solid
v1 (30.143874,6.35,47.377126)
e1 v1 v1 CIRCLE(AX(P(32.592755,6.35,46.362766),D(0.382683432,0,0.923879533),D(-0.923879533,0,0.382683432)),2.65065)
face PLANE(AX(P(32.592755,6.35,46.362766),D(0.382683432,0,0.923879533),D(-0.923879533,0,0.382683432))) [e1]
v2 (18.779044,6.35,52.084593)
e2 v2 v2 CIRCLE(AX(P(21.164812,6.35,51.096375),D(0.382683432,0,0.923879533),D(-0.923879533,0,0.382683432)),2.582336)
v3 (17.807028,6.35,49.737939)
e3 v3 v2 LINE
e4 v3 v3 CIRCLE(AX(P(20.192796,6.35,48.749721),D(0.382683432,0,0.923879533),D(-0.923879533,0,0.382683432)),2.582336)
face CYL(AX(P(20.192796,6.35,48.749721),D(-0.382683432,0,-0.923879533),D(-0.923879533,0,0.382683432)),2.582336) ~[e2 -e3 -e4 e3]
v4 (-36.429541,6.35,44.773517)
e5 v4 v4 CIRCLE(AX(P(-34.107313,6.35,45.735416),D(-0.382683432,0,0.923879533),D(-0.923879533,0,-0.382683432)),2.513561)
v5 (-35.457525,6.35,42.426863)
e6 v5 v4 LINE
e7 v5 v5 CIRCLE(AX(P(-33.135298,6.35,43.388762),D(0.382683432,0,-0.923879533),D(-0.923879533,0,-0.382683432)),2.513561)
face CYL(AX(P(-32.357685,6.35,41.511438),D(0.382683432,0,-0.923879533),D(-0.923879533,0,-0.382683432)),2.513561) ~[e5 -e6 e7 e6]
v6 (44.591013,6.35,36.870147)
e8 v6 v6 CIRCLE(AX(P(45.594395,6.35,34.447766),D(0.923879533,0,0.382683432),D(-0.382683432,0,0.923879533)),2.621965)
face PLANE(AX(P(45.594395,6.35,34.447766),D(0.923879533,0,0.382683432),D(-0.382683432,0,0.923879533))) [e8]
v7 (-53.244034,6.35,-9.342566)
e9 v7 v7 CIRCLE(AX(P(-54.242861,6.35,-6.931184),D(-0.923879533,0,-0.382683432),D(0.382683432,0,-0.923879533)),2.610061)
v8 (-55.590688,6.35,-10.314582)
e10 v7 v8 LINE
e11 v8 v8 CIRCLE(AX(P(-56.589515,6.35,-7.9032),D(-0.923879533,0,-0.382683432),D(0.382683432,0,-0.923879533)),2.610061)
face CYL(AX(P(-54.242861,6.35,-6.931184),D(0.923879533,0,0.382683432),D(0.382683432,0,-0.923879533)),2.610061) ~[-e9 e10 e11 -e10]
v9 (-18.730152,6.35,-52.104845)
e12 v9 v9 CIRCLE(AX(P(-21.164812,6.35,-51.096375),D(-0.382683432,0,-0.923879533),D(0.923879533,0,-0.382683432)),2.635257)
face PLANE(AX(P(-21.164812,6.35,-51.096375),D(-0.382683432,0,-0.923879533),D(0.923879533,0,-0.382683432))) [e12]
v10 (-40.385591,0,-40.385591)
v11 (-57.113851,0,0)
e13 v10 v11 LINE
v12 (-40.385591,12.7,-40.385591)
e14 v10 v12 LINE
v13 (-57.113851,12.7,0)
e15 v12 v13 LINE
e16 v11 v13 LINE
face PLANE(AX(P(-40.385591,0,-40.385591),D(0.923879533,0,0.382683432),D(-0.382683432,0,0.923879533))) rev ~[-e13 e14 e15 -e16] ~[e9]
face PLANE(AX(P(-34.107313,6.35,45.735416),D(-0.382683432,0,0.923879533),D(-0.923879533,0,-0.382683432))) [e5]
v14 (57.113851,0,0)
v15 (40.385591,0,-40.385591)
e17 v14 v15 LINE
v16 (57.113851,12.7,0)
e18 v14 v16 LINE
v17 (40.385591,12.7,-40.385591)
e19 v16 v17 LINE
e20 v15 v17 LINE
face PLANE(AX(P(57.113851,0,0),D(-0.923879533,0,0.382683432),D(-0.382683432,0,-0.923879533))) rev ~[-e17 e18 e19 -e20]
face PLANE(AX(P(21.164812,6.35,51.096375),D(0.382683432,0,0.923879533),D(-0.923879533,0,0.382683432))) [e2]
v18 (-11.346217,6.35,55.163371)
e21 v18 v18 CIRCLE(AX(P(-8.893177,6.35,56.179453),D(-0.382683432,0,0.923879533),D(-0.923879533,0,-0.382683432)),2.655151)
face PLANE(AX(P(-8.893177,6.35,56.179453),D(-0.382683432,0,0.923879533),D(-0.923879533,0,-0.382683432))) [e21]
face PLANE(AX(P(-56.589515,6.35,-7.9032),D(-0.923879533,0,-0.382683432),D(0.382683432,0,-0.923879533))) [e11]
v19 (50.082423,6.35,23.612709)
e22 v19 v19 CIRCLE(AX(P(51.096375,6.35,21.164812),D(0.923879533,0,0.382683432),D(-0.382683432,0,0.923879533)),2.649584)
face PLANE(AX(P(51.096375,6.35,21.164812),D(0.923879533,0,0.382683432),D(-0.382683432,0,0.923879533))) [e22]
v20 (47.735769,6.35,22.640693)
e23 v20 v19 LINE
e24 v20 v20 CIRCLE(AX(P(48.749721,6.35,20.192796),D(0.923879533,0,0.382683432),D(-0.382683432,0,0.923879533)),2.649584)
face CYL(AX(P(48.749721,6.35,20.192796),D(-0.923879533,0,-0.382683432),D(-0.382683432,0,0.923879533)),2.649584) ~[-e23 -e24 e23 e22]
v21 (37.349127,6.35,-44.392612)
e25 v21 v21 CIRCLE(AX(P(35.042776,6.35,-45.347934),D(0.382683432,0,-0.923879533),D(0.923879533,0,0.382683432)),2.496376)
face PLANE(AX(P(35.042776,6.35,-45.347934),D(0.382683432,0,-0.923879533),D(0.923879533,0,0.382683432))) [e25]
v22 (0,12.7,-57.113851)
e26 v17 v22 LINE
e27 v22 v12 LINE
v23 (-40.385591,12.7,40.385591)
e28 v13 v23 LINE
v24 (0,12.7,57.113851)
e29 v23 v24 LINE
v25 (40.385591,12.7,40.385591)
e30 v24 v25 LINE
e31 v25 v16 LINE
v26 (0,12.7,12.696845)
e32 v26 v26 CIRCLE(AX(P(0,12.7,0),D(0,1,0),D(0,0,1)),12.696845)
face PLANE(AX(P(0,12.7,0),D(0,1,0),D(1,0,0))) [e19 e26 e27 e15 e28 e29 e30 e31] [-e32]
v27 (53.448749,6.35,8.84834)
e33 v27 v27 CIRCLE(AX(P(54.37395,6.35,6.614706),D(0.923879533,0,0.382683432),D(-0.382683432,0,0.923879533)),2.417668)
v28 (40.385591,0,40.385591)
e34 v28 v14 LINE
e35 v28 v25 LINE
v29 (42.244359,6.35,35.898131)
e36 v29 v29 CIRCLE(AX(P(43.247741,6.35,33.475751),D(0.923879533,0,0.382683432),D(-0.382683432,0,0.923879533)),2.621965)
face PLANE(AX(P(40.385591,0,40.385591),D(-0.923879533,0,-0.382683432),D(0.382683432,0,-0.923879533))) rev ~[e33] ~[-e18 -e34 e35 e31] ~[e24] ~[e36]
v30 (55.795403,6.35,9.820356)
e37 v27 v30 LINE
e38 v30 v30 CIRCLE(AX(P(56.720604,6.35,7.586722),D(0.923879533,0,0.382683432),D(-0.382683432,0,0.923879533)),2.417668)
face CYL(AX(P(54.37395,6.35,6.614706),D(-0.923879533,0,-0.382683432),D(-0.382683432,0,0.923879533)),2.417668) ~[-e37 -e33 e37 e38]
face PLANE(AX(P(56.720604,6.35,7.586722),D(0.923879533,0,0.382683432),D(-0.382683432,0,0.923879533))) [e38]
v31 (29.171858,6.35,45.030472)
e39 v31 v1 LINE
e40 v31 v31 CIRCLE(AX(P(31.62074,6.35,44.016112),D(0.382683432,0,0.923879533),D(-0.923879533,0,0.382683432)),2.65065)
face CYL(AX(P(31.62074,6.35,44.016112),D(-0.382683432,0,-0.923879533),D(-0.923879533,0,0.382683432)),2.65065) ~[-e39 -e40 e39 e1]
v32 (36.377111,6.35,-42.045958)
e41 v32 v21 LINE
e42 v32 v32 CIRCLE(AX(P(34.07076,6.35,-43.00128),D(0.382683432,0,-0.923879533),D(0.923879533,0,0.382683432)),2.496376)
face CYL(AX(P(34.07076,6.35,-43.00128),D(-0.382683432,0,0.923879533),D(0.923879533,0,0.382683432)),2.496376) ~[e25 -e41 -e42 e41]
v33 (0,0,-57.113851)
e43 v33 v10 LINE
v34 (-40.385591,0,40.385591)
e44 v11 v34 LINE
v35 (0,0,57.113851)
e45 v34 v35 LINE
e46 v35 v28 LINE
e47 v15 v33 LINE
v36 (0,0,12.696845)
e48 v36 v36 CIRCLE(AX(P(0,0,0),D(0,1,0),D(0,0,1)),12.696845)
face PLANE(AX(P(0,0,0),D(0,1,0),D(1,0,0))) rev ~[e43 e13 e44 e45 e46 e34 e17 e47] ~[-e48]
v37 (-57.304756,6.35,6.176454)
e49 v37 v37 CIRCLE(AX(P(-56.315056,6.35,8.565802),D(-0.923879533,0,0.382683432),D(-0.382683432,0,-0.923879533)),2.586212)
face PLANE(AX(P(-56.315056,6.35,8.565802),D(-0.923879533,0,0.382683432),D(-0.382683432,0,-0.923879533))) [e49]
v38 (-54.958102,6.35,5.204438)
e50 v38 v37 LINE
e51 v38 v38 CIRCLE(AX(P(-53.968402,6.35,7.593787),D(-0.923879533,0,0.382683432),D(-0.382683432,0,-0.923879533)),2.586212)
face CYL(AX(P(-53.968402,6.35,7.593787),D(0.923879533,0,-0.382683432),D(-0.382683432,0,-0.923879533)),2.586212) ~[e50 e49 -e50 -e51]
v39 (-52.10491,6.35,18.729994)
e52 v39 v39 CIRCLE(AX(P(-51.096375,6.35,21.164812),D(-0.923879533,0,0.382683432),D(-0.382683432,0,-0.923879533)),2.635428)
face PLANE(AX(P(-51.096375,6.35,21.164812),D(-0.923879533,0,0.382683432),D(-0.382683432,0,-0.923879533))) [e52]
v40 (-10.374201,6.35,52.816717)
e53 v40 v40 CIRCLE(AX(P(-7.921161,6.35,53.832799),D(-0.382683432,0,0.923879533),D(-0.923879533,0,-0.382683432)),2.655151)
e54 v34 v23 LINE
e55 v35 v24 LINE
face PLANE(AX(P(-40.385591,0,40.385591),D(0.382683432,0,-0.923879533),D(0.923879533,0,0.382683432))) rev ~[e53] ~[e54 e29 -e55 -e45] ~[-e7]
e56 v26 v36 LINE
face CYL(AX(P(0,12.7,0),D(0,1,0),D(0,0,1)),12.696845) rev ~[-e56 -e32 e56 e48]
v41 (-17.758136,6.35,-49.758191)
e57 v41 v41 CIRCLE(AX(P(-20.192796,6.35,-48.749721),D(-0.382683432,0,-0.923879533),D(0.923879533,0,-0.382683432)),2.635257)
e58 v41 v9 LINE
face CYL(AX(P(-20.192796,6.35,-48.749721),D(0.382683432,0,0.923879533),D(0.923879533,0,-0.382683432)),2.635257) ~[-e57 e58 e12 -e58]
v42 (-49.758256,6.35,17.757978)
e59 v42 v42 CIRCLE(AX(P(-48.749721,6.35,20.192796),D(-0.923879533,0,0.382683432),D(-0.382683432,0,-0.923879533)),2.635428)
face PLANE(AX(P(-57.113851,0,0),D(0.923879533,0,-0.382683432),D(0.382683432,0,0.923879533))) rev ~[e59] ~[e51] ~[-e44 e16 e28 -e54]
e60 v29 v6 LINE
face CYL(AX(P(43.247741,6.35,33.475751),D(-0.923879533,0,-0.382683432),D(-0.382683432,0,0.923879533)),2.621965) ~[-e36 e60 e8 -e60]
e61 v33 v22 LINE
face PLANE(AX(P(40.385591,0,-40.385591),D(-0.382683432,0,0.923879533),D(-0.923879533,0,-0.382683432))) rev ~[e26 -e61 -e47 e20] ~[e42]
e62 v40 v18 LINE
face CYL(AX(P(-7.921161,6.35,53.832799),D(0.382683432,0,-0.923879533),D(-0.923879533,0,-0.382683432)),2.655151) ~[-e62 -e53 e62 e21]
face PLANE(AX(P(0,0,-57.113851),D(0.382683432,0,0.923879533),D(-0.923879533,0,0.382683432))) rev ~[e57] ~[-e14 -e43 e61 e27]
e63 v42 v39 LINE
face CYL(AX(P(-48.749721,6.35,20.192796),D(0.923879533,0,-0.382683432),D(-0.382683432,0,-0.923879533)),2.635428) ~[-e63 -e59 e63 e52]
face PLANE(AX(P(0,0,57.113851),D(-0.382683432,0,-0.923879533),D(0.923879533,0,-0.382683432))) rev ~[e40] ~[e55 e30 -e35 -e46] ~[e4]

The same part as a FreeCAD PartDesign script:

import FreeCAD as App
import Part
import Sketcher
from FreeCAD import Vector
Q = App.Units.Quantity

doc = App.newDocument("Part")
body = doc.addObject("PartDesign::Body", "Body")

# Sketch on XZ plane
sketch1 = doc.addObject("Sketcher::SketchObject", "Sketch")
body.addObject(sketch1)
sketch1.AttachmentSupport = (doc.XZ_Plane, [""])
sketch1.MapMode = "FlatFace"
sketch1.addGeometry([
    Part.LineSegment(Vector(57, 0, 0), Vector(40, -40, 0)),  # 0
    Part.LineSegment(Vector(40, -40, 0), Vector(0, -57, 0)),  # 1
    Part.LineSegment(Vector(0, -57, 0), Vector(-40, -40, 0)),  # 2
    Part.LineSegment(Vector(-40, -40, 0), Vector(-57, 0, 0)),  # 3
    Part.LineSegment(Vector(-57, 0, 0), Vector(-40, 40, 0)),  # 4
    Part.LineSegment(Vector(-40, 40, 0), Vector(0, 57, 0)),  # 5
    Part.LineSegment(Vector(0, 57, 0), Vector(40, 40, 0)),  # 6
    Part.LineSegment(Vector(40, 40, 0), Vector(57, 0, 0)),  # 7
], False)
sketch1.addConstraint([
    Sketcher.Constraint("Coincident", 0, 2, 1, 1),
    Sketcher.Constraint("Coincident", 1, 2, 2, 1),
    Sketcher.Constraint("Coincident", 2, 2, 3, 1),
    Sketcher.Constraint("Coincident", 3, 2, 4, 1),
    Sketcher.Constraint("Coincident", 4, 2, 5, 1),
    Sketcher.Constraint("Coincident", 5, 2, 6, 1),
    Sketcher.Constraint("Coincident", 6, 2, 7, 1),
    Sketcher.Constraint("Coincident", 7, 2, 0, 1),
    Sketcher.Constraint("Symmetric", 0, 2, 4, 2, -1, 1),
    Sketcher.Constraint("Symmetric", 1, 2, 5, 2, -1, 1),
    Sketcher.Constraint("Symmetric", 2, 2, 6, 2, -1, 1),
    Sketcher.Constraint("Symmetric", 3, 2, 7, 2, -1, 1),
    Sketcher.Constraint("Symmetric", 0, 2, 2, 2, -2),
    Sketcher.Constraint("PointOnObject", 1, 2, -2),
    Sketcher.Constraint("PointOnObject", 3, 2, -1),
    Sketcher.Constraint("Perpendicular", 0, 2),
    Sketcher.Constraint("Equal", 0, 1),
    Sketcher.Constraint("Angle", 0, Q("-112.5 deg")),
    Sketcher.Constraint("Distance", 0, 43.713049),
])
pad1 = doc.addObject("PartDesign::Pad", "Pad")
body.addObject(pad1)
pad1.Profile = sketch1
pad1.Length = Q("0.5 in")
pad1.Reversed = True

# Sketch on an angled plane
sketch2 = doc.addObject("Sketcher::SketchObject", "Sketch001")
body.addObject(sketch2)
sketch2.Placement = App.Placement(Vector(20.192796, 0, 48.749721), App.Rotation(Vector(0.923879533, 0, -0.382683432), Vector(0, 1.000000001, 0), Vector(0.382683432, 0, 0.923879533), "ZXY"))
sketch2.addGeometry(Part.Circle(Vector(0, 6.4, 0), Vector(0, 0, 1), 2.6), False)
sketch2.addConstraint([
    Sketcher.Constraint("PointOnObject", 0, 3, -2),
    Sketcher.Constraint("DistanceY", -1, 1, 0, 3, Q("0.25 in")),
    Sketcher.Constraint("Diameter", 0, 5.164673),
])
pad2 = doc.addObject("PartDesign::Pad", "Pad001")
body.addObject(pad2)
pad2.Profile = sketch2
pad2.Length = Q("0.1 in")

# Sketch on an angled plane
sketch3 = doc.addObject("Sketcher::SketchObject", "Sketch002")
body.addObject(sketch3)
sketch3.Placement = App.Placement(Vector(20.192796, 0, 48.749721), App.Rotation(Vector(0.923879533, 0, -0.382683432), Vector(0, 1.000000001, 0), Vector(0.382683432, 0, 0.923879533), "ZXY"))
sketch3.addGeometry(Part.Circle(Vector(12.4, 6.4, 0), Vector(0, 0, 1), 2.7), False)
sketch3.addConstraint([
    Sketcher.Constraint("Diameter", 0, 5.301299),
    Sketcher.Constraint("DistanceY", -1, 1, 0, 3, Q("0.25 in")),
    Sketcher.Constraint("DistanceX", -1, 1, 0, 3, 12.369517),
])
pad3 = doc.addObject("PartDesign::Pad", "Pad002")
body.addObject(pad3)
pad3.Profile = sketch3
pad3.Length = Q("0.1 in")

# Sketch on an angled plane
sketch4 = doc.addObject("Sketcher::SketchObject", "Sketch003")
body.addObject(sketch4)
sketch4.Placement = App.Placement(Vector(-20.192796, 0, 48.749721), App.Rotation(Vector(0.923879533, 0, 0.382683432), Vector(0, 1.000000001, 0), Vector(-0.382683432, 0, 0.923879533), "ZXY"))
sketch4.addGeometry(Part.Circle(Vector(13.3, 6.4, 0), Vector(0, 0, 1), 2.7), False)
sketch4.addConstraint([
    Sketcher.Constraint("DistanceY", -1, 1, 0, 3, Q("0.25 in")),
    Sketcher.Constraint("Diameter", 0, 5.310303),
    Sketcher.Constraint("DistanceX", -1, 1, 0, 3, 13.282722),
])
pad4 = doc.addObject("PartDesign::Pad", "Pad003")
body.addObject(pad4)
pad4.Profile = sketch4
pad4.Length = Q("0.1 in")

# Sketch on an angled plane
sketch5 = doc.addObject("Sketcher::SketchObject", "Sketch004")
body.addObject(sketch5)
sketch5.Placement = App.Placement(Vector(-20.192796, 0, 48.749721), App.Rotation(Vector(0.923879533, 0, 0.382683432), Vector(0, 1.000000001, 0), Vector(-0.382683432, 0, 0.923879533), "ZXY"))
sketch5.addGeometry(Part.Circle(Vector(-14, 6.4, 0), Vector(0, 0, 1), 2.5), False)
sketch5.addConstraint([
    Sketcher.Constraint("DistanceY", -1, 1, 0, 3, Q("0.25 in")),
    Sketcher.Constraint("Diameter", 0, 5.027122),
    Sketcher.Constraint("DistanceX", 0, 3, -1, 1, 14.008863),
])
pad5 = doc.addObject("PartDesign::Pad", "Pad004")
body.addObject(pad5)
pad5.Profile = sketch5
pad5.Type = "TwoLengths"
pad5.Length = Q("0.1 in")
pad5.Length2 = Q("0.08 in")

# Sketch on an angled plane
sketch6 = doc.addObject("Sketcher::SketchObject", "Sketch005")
body.addObject(sketch6)
sketch6.Placement = App.Placement(Vector(-48.749721, 0, 20.192796), App.Rotation(Vector(0.382683432, 0, 0.923879533), Vector(0, 1.000000001, 0), Vector(-0.923879533, 0, 0.382683432), "ZXY"))
sketch6.addGeometry(Part.Circle(Vector(-13.6, 6.4, 0), Vector(0, 0, 1), 2.6), False)
sketch6.addConstraint([
    Sketcher.Constraint("DistanceY", -1, 1, 0, 3, Q("0.25 in")),
    Sketcher.Constraint("Diameter", 0, 5.172424),
    Sketcher.Constraint("DistanceX", 0, 3, -1, 1, 13.637069),
])
pad6 = doc.addObject("PartDesign::Pad", "Pad005")
body.addObject(pad6)
pad6.Profile = sketch6
pad6.Length = Q("0.1 in")

# Sketch on an angled plane
sketch7 = doc.addObject("Sketcher::SketchObject", "Sketch006")
body.addObject(sketch7)
sketch7.Placement = App.Placement(Vector(-48.749721, 0, 20.192796), App.Rotation(Vector(0.382683432, 0, 0.923879533), Vector(0, 1.000000001, 0), Vector(-0.923879533, 0, 0.382683432), "ZXY"))
sketch7.addGeometry(Part.Circle(Vector(0, 6.4, 0), Vector(0, 0, 1), 2.6), False)
sketch7.addConstraint([
    Sketcher.Constraint("PointOnObject", 0, 3, -2),
    Sketcher.Constraint("DistanceY", -1, 1, 0, 3, Q("0.25 in")),
    Sketcher.Constraint("Diameter", 0, 5.270856),
])
pad7 = doc.addObject("PartDesign::Pad", "Pad006")
body.addObject(pad7)
pad7.Profile = sketch7
pad7.Length = Q("0.1 in")

# Sketch on an angled plane
sketch8 = doc.addObject("Sketcher::SketchObject", "Sketch007")
body.addObject(sketch8)
sketch8.Placement = App.Placement(Vector(-48.749721, 0, -20.192796), App.Rotation(Vector(-0.382683432, 0, 0.923879533), Vector(0, 1.000000001, 0), Vector(-0.923879533, 0, -0.382683432), "ZXY"))
sketch8.addGeometry(Part.Circle(Vector(14.4, 6.4, 0), Vector(0, 0, 1), 2.6), False)
sketch8.addConstraint([
    Sketcher.Constraint("DistanceY", -1, 1, 0, 3, Q("0.25 in")),
    Sketcher.Constraint("Diameter", 0, 5.220121),
    Sketcher.Constraint("DistanceX", -1, 1, 0, 3, 14.354265),
])
pad8 = doc.addObject("PartDesign::Pad", "Pad007")
body.addObject(pad8)
pad8.Profile = sketch8
pad8.Length = Q("0.1 in")

# Sketch on an angled plane
sketch9 = doc.addObject("Sketcher::SketchObject", "Sketch008")
body.addObject(sketch9)
sketch9.Placement = App.Placement(Vector(-20.192796, 0, -48.749721), App.Rotation(Vector(-0.923879533, 0, 0.382683432), Vector(0, 1.000000001, 0), Vector(-0.382683432, 0, -0.923879533), "ZXY"))
sketch9.addGeometry(Part.Circle(Vector(0, 6.4, 0), Vector(0, 0, 1), 2.6), False)
sketch9.addConstraint([
    Sketcher.Constraint("PointOnObject", 0, 3, -2),
    Sketcher.Constraint("DistanceY", -1, 1, 0, 3, Q("0.25 in")),
    Sketcher.Constraint("Diameter", 0, 5.270514),
])
pad9 = doc.addObject("PartDesign::Pad", "Pad008")
body.addObject(pad9)
pad9.Profile = sketch9
pad9.Length = Q("0.1 in")

# Sketch on an angled plane
sketch10 = doc.addObject("Sketcher::SketchObject", "Sketch009")
body.addObject(sketch10)
sketch10.Placement = App.Placement(Vector(20.192796, 0, -48.749721), App.Rotation(Vector(-0.923879533, 0, -0.382683432), Vector(0, 1.000000001, 0), Vector(0.382683432, 0, -0.923879533), "ZXY"))
sketch10.addGeometry(Part.Circle(Vector(-15, 6.4, 0), Vector(0, 0, 1), 2.5), False)
sketch10.addConstraint([
    Sketcher.Constraint("DistanceY", -1, 1, 0, 3, Q("0.25 in")),
    Sketcher.Constraint("Diameter", 0, 4.992752),
    Sketcher.Constraint("DistanceX", 0, 3, -1, 1, 15.021401),
])
pad10 = doc.addObject("PartDesign::Pad", "Pad009")
body.addObject(pad10)
pad10.Profile = sketch10
pad10.Length = Q("0.1 in")

# Sketch on an angled plane
sketch11 = doc.addObject("Sketcher::SketchObject", "Sketch010")
body.addObject(sketch11)
sketch11.Placement = App.Placement(Vector(48.749721, 0, 20.192796), App.Rotation(Vector(0.382683432, 0, -0.923879533), Vector(0, 1.000000001, 0), Vector(0.923879533, 0, 0.382683432), "ZXY"))
sketch11.addGeometry(Part.Circle(Vector(-14.4, 6.4, 0), Vector(0, 0, 1), 2.6), False)
sketch11.addConstraint([
    Sketcher.Constraint("DistanceY", -1, 1, 0, 3, Q("0.25 in")),
    Sketcher.Constraint("Diameter", 0, 5.243931),
    Sketcher.Constraint("DistanceX", 0, 3, -1, 1, 14.377367),
])
pad11 = doc.addObject("PartDesign::Pad", "Pad010")
body.addObject(pad11)
pad11.Profile = sketch11
pad11.Length = Q("0.1 in")

# Sketch on an angled plane
sketch12 = doc.addObject("Sketcher::SketchObject", "Sketch011")
body.addObject(sketch12)
sketch12.Placement = App.Placement(Vector(48.749721, 0, 20.192796), App.Rotation(Vector(0.382683432, 0, -0.923879533), Vector(0, 1.000000001, 0), Vector(0.923879533, 0, 0.382683432), "ZXY"))
sketch12.addGeometry(Part.Circle(Vector(0, 6.4, 0), Vector(0, 0, 1), 2.6), False)
sketch12.addConstraint([
    Sketcher.Constraint("PointOnObject", 0, 3, -2),
    Sketcher.Constraint("DistanceY", -1, 1, 0, 3, Q("0.25 in")),
    Sketcher.Constraint("Diameter", 0, 5.299169),
])
pad12 = doc.addObject("PartDesign::Pad", "Pad011")
body.addObject(pad12)
pad12.Profile = sketch12
pad12.Length = Q("0.1 in")

# Sketch on an angled plane
sketch13 = doc.addObject("Sketcher::SketchObject", "Sketch012")
body.addObject(sketch13)
sketch13.Placement = App.Placement(Vector(48.749721, 0, 20.192796), App.Rotation(Vector(0.382683432, 0, -0.923879533), Vector(0, 1.000000001, 0), Vector(0.923879533, 0, 0.382683432), "ZXY"))
sketch13.addGeometry(Part.Circle(Vector(14.7, 6.4, 0), Vector(0, 0, 1), 2.4), False)
sketch13.addConstraint([
    Sketcher.Constraint("DistanceY", -1, 1, 0, 3, Q("0.25 in")),
    Sketcher.Constraint("Diameter", 0, 4.835337),
    Sketcher.Constraint("DistanceX", -1, 1, 0, 3, 14.696819),
])
pad13 = doc.addObject("PartDesign::Pad", "Pad012")
body.addObject(pad13)
pad13.Profile = sketch13
pad13.Length = Q("0.1 in")

# Sketch on XZ plane
sketch14 = doc.addObject("Sketcher::SketchObject", "Sketch013")
body.addObject(sketch14)
sketch14.AttachmentSupport = (doc.XZ_Plane, [""])
sketch14.MapMode = "FlatFace"
sketch14.AttachmentOffset = App.Placement(Vector(0, 0, -0.5 * 25.4), App.Rotation())
sketch14.addGeometry(Part.Circle(Vector(0, 0, 0), Vector(0, 0, 1), 13), False)
sketch14.addConstraint([
    Sketcher.Constraint("Coincident", 0, 3, -1, 1),
    Sketcher.Constraint("Diameter", 0, 25.393691),
])
pocket1 = doc.addObject("PartDesign::Pocket", "Pocket")
body.addObject(pocket1)
pocket1.Profile = sketch14
pocket1.Length = Q("0.51 in")
pocket1.Reversed = True

doc.recompute()
